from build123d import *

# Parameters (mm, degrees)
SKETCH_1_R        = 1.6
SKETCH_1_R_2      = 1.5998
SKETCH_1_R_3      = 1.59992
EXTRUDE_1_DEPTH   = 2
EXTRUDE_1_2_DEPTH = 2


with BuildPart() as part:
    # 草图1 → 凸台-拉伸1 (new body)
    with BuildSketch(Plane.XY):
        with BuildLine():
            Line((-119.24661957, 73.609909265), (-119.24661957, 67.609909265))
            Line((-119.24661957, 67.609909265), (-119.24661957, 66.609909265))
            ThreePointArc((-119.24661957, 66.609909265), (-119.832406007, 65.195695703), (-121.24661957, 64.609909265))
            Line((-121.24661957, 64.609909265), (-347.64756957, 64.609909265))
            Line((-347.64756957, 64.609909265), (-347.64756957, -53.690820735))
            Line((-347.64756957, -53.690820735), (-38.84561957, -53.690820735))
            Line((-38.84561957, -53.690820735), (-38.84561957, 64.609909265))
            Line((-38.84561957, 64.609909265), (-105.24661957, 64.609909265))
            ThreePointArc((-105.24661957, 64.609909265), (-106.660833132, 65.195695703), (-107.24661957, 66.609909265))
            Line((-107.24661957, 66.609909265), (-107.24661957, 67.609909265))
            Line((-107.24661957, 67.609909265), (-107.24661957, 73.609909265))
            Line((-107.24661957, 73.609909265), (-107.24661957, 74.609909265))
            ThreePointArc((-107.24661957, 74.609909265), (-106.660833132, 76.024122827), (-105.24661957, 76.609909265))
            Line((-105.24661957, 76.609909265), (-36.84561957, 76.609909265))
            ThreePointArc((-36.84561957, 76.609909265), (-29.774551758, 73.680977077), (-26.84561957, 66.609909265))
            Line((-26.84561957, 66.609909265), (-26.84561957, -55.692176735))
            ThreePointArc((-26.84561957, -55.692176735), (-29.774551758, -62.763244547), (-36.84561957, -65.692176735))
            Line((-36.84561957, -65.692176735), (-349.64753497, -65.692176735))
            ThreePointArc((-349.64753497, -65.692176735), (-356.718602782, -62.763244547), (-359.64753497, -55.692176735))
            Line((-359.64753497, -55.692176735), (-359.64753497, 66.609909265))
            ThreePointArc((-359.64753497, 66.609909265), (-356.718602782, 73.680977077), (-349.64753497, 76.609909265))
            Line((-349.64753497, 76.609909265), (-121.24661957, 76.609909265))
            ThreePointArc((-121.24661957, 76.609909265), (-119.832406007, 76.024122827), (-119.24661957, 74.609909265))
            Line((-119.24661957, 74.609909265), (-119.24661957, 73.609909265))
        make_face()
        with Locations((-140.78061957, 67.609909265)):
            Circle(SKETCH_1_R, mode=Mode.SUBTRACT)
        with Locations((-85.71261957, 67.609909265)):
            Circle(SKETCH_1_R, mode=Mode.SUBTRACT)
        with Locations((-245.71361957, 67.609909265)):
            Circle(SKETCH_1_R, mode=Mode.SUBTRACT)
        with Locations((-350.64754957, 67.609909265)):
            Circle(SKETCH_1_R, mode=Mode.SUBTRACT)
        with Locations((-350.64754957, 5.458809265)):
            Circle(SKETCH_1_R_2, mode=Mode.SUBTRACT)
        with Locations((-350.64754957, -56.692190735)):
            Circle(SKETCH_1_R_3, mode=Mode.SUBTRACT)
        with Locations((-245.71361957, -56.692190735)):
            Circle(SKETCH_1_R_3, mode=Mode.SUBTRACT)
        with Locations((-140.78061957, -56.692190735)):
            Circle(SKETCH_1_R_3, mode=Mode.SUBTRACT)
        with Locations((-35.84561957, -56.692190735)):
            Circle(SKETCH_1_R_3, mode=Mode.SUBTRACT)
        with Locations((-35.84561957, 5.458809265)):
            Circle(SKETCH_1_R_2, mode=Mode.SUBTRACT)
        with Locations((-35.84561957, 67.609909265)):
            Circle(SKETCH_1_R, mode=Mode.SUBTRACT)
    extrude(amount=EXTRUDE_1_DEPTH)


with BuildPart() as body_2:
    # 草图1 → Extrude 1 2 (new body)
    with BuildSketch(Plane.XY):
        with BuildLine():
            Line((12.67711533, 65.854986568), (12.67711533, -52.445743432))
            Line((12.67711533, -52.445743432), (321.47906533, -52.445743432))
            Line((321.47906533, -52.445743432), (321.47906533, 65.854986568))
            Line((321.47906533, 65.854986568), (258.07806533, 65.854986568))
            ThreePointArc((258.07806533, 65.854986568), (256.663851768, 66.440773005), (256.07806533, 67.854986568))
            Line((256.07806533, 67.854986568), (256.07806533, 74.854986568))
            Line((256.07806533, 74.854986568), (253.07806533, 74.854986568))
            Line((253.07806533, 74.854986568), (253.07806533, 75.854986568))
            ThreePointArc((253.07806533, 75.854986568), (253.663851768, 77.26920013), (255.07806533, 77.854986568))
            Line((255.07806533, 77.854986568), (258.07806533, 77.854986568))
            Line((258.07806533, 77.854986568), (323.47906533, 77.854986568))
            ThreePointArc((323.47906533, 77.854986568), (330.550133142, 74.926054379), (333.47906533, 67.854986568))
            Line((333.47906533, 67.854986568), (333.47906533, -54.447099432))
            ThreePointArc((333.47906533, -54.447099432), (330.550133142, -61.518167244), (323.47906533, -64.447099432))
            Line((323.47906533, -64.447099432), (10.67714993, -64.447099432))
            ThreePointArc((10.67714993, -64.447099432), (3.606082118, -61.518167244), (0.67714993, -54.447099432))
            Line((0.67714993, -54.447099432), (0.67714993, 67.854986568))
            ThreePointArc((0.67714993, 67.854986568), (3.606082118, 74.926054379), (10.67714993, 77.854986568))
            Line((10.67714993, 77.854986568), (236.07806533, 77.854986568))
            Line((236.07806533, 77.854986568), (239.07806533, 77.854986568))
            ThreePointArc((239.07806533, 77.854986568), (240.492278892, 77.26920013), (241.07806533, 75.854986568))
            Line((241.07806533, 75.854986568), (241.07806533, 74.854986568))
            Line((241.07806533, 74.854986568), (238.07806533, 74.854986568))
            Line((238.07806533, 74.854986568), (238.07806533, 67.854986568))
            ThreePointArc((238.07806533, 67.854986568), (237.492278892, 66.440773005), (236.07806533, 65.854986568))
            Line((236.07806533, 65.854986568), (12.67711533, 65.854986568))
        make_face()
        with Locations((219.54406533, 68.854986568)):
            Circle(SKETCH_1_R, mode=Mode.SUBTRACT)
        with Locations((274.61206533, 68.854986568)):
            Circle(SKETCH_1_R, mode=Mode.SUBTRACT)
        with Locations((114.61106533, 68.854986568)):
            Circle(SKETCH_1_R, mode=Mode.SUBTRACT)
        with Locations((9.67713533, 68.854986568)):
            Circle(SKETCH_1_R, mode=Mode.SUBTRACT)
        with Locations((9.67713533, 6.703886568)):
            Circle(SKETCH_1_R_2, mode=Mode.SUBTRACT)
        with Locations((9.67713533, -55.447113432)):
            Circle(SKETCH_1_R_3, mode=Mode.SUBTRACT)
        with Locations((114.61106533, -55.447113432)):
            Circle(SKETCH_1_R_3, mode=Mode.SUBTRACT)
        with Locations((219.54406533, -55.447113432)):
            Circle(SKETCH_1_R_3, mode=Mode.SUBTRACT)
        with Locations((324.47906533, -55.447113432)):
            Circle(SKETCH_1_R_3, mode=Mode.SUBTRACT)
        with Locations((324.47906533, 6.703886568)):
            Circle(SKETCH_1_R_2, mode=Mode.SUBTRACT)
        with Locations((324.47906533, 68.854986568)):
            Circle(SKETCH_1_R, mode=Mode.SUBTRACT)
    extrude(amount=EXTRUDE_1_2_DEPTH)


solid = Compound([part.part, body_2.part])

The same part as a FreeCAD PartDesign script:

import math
import FreeCAD as App
import Part
import Sketcher
from FreeCAD import Vector

doc = App.newDocument("Part")
body = doc.addObject("PartDesign::Body", "Body")

sketch1 = doc.addObject("Sketcher::SketchObject", "Sketch")
body.addObject(sketch1)
sketch1.AttachmentSupport = (doc.XY_Plane, [""])
sketch1.MapMode = "FlatFace"
sketch1.addGeometry([
    Part.ArcOfCircle(Part.Circle(Vector(-121.2, 66.6, 0), Vector(0, 0, 1), 2), math.radians(-90), math.radians(0)),
    Part.LineSegment(Vector(-119.2, 66.6, 0), Vector(-119.2, 74.6, 0)),
    Part.ArcOfCircle(Part.Circle(Vector(-121.2, 74.6, 0), Vector(0, 0, 1), 2), math.radians(0), math.radians(90)),
    Part.LineSegment(Vector(-121.2, 76.6, 0), Vector(-349.6, 76.6, 0)),
    Part.ArcOfCircle(Part.Circle(Vector(-349.6, 66.6, 0), Vector(0, 0, 1), 10), math.radians(90), math.radians(180)),
    Part.LineSegment(Vector(-359.6, 66.6, 0), Vector(-359.6, -55.7, 0)),
    Part.ArcOfCircle(Part.Circle(Vector(-349.6, -55.7, 0), Vector(0, 0, 1), 10), math.radians(180), math.radians(270)),
    Part.LineSegment(Vector(-349.6, -65.7, 0), Vector(-36.8, -65.7, 0)),
    Part.ArcOfCircle(Part.Circle(Vector(-36.8, -55.7, 0), Vector(0, 0, 1), 10), math.radians(-90), math.radians(0)),
    Part.LineSegment(Vector(-26.8, -55.7, 0), Vector(-26.8, 66.6, 0)),
    Part.ArcOfCircle(Part.Circle(Vector(-36.8, 66.6, 0), Vector(0, 0, 1), 10), math.radians(0), math.radians(90)),
    Part.LineSegment(Vector(-36.8, 76.6, 0), Vector(-105.2, 76.6, 0)),
    Part.ArcOfCircle(Part.Circle(Vector(-105.2, 74.6, 0), Vector(0, 0, 1), 2), math.radians(90), math.radians(180)),
    Part.LineSegment(Vector(-107.2, 74.6, 0), Vector(-107.2, 66.6, 0)),
    Part.ArcOfCircle(Part.Circle(Vector(-105.2, 66.6, 0), Vector(0, 0, 1), 2), math.radians(-180), math.radians(-90)),
    Part.LineSegment(Vector(-105.2, 64.6, 0), Vector(-38.8, 64.6, 0)),
    Part.LineSegment(Vector(-38.8, 64.6, 0), Vector(-38.8, -53.7, 0)),
    Part.LineSegment(Vector(-38.8, -53.7, 0), Vector(-347.6, -53.7, 0)),
    Part.LineSegment(Vector(-347.6, -53.7, 0), Vector(-347.6, 64.6, 0)),
    Part.LineSegment(Vector(-347.6, 64.6, 0), Vector(-121.2, 64.6, 0)),
    Part.Circle(Vector(-35.8, -56.7, 0), Vector(0, 0, 1), 1.6),
    Part.Circle(Vector(-140.8, -56.7, 0), Vector(0, 0, 1), 1.6),
    Part.Circle(Vector(-35.8, 5.5, 0), Vector(0, 0, 1), 1.6),
    Part.Circle(Vector(-245.7, -56.7, 0), Vector(0, 0, 1), 1.6),
    Part.Circle(Vector(-350.6, -56.7, 0), Vector(0, 0, 1), 1.6),
    Part.Circle(Vector(-350.6, 5.5, 0), Vector(0, 0, 1), 1.6),
    Part.Circle(Vector(-35.8, 67.6, 0), Vector(0, 0, 1), 1.6),
    Part.Circle(Vector(-85.7, 67.6, 0), Vector(0, 0, 1), 1.6),
    Part.Circle(Vector(-140.8, 67.6, 0), Vector(0, 0, 1), 1.6),
    Part.Circle(Vector(-245.7, 67.6, 0), Vector(0, 0, 1), 1.6),
    Part.Circle(Vector(-350.6, 67.6, 0), Vector(0, 0, 1), 1.6),
], False)
sketch1.addConstraint([
    Sketcher.Constraint("Tangent", 0, 2, 1, 1),
    Sketcher.Constraint("Tangent", 1, 2, 2, 1),
    Sketcher.Constraint("Tangent", 2, 2, 3, 1),
    Sketcher.Constraint("Tangent", 3, 2, 4, 1),
    Sketcher.Constraint("Tangent", 4, 2, 5, 1),
    Sketcher.Constraint("Tangent", 5, 2, 6, 1),
    Sketcher.Constraint("Tangent", 6, 2, 7, 1),
    Sketcher.Constraint("Tangent", 7, 2, 8, 1),
    Sketcher.Constraint("Tangent", 8, 2, 9, 1),
    Sketcher.Constraint("Tangent", 9, 2, 10, 1),
    Sketcher.Constraint("Tangent", 10, 2, 11, 1),
    Sketcher.Constraint("Tangent", 11, 2, 12, 1),
    Sketcher.Constraint("Tangent", 12, 2, 13, 1),
    Sketcher.Constraint("Tangent", 13, 2, 14, 1),
    Sketcher.Constraint("Tangent", 14, 2, 15, 1),
    Sketcher.Constraint("Coincident", 15, 2, 16, 1),
    Sketcher.Constraint("Coincident", 16, 2, 17, 1),
    Sketcher.Constraint("Coincident", 17, 2, 18, 1),
    Sketcher.Constraint("Coincident", 18, 2, 19, 1),
    Sketcher.Constraint("Tangent", 19, 2, 0, 1),
    Sketcher.Constraint("Vertical", 1),
    Sketcher.Constraint("Horizontal", 3),
    Sketcher.Constraint("Vertical", 5),
    Sketcher.Constraint("Horizontal", 7),
    Sketcher.Constraint("Vertical", 9),
    Sketcher.Constraint("Horizontal", 11),
    Sketcher.Constraint("Vertical", 13),
    Sketcher.Constraint("Horizontal", 15),
    Sketcher.Constraint("Vertical", 16),
    Sketcher.Constraint("Horizontal", 17),
    Sketcher.Constraint("Vertical", 18),
    Sketcher.Constraint("Horizontal", 19),
    Sketcher.Constraint("Equal", 0, 2),
    Sketcher.Constraint("Equal", 4, 6),
    Sketcher.Constraint("Equal", 6, 8),
    Sketcher.Constraint("Equal", 8, 10),
    Sketcher.Constraint("Equal", 2, 12),
    Sketcher.Constraint("Equal", 12, 14),
    Sketcher.Constraint("Equal", 20, 21),
    Sketcher.Constraint("Equal", 21, 23),
    Sketcher.Constraint("Equal", 23, 24),
    Sketcher.Constraint("Equal", 22, 25),
    Sketcher.Constraint("Equal", 26, 27),
    Sketcher.Constraint("Equal", 27, 28),
    Sketcher.Constraint("Equal", 28, 29),
    Sketcher.Constraint("Equal", 29, 30),
    Sketcher.Constraint("Horizontal", 0, 3, 4, 3),
    Sketcher.Constraint("Horizontal", 4, 3, 10, 3),
    Sketcher.Constraint("Horizontal", 10, 3, 14, 3),
    Sketcher.Constraint("Horizontal", 20, 3, 21, 3),
    Sketcher.Constraint("Horizontal", 21, 3, 23, 3),
    Sketcher.Constraint("Horizontal", 23, 3, 24, 3),
    Sketcher.Constraint("Horizontal", 22, 3, 25, 3),
    Sketcher.Constraint("Horizontal", 26, 3, 27, 3),
    Sketcher.Constraint("Horizontal", 27, 3, 28, 3),
    Sketcher.Constraint("Horizontal", 28, 3, 29, 3),
    Sketcher.Constraint("Horizontal", 29, 3, 30, 3),
    Sketcher.Constraint("Vertical", 20, 3, 22, 3),
    Sketcher.Constraint("Vertical", 24, 3, 25, 3),
    Sketcher.Constraint("Vertical", 22, 3, 26, 3),
    Sketcher.Constraint("Vertical", 21, 3, 28, 3),
    Sketcher.Constraint("Vertical", 23, 3, 29, 3),
    Sketcher.Constraint("Vertical", 25, 3, 30, 3),
    Sketcher.Constraint("Radius", 0, 2.0),
    Sketcher.Constraint("Radius", 4, 10.0),
    Sketcher.Constraint("Diameter", 26, 3.2),
    Sketcher.Constraint("DistanceX", 2, 3, 12, 3, 16.0),
    Sketcher.Constraint("DistanceX", 8, 3, 20, 3, 1.0),
    Sketcher.Constraint("DistanceY", 10, 3, 26, 3, 1.0),
    Sketcher.Constraint("DistanceX", 15, 2, 10, 3, 2.0),
    Sketcher.Constraint("Diameter", 22, 3.1996),
    Sketcher.Constraint("Diameter", 20, 3.19984),
    Sketcher.Constraint("DistanceX", 11, 2, 11, 1, 68.401),
    Sketcher.Constraint("DistanceX", 21, 3, 8, 3, 103.935),
    Sketcher.Constraint("DistanceY", 20, 3, 22, 3, 62.151),
    Sketcher.Constraint("DistanceX", 23, 3, 21, 3, 104.933),
    Sketcher.Constraint("DistanceX", 14, 3, 27, 3, 19.534),
    Sketcher.Constraint("DistanceX", 17, 2, 17, 1, 308.80195),
    Sketcher.Constraint("DistanceY", 16, 2, 16, 1, 118.30073),
    Sketcher.Constraint("DistanceY", 20, 3, 10, 3, 123.3021),
    Sketcher.Constraint("DistanceX", 3, 2, 3, 1, 228.400915),
    Sketcher.Constraint("DistanceY", 5, 2, 5, 1, 122.302086),
    Sketcher.Constraint("DistanceX", 0, 3, -1, 1, 121.24662),
    Sketcher.Constraint("DistanceY", -1, 1, 0, 3, 66.609909),
    Sketcher.Constraint("DistanceX", 24, 3, -1, 1, 350.64755),
])
pad1 = doc.addObject("PartDesign::Pad", "Pad")
body.addObject(pad1)
pad1.Profile = sketch1
pad1.Length = 2
body2 = doc.addObject("PartDesign::Body", "Body001")

sketch2 = doc.addObject("Sketcher::SketchObject", "Sketch001")
body2.addObject(sketch2)
sketch2.AttachmentSupport = (doc.getObject("XY_Plane001"), [""])
sketch2.MapMode = "FlatFace"
sketch2.addGeometry([
    Part.LineSegment(Vector(12.7, -52.4, 0), Vector(12.7, 65.9, 0)),
    Part.LineSegment(Vector(12.7, 65.9, 0), Vector(236.1, 65.9, 0)),
    Part.ArcOfCircle(Part.Circle(Vector(236.1, 67.9, 0), Vector(0, 0, 1), 2), math.radians(-90), math.radians(0)),
    Part.LineSegment(Vector(238.1, 67.9, 0), Vector(238.1, 74.9, 0)),
    Part.LineSegment(Vector(238.1, 74.9, 0), Vector(241.1, 74.9, 0)),
    Part.LineSegment(Vector(241.1, 74.9, 0), Vector(241.1, 75.9, 0)),
    Part.ArcOfCircle(Part.Circle(Vector(239.1, 75.9, 0), Vector(0, 0, 1), 2), math.radians(0), math.radians(90)),
    Part.LineSegment(Vector(239.1, 77.9, 0), Vector(10.7, 77.9, 0)),
    Part.ArcOfCircle(Part.Circle(Vector(10.7, 67.9, 0), Vector(0, 0, 1), 10), math.radians(90), math.radians(180)),
    Part.LineSegment(Vector(0.7, 67.9, 0), Vector(0.7, -54.4, 0)),
    Part.ArcOfCircle(Part.Circle(Vector(10.7, -54.4, 0), Vector(0, 0, 1), 10), math.radians(180), math.radians(270)),
    Part.LineSegment(Vector(10.7, -64.4, 0), Vector(323.5, -64.4, 0)),
    Part.ArcOfCircle(Part.Circle(Vector(323.5, -54.4, 0), Vector(0, 0, 1), 10), math.radians(-90), math.radians(0)),
    Part.LineSegment(Vector(333.5, -54.4, 0), Vector(333.5, 67.9, 0)),
    Part.ArcOfCircle(Part.Circle(Vector(323.5, 67.9, 0), Vector(0, 0, 1), 10), math.radians(0), math.radians(90)),
    Part.LineSegment(Vector(323.5, 77.9, 0), Vector(255.1, 77.9, 0)),
    Part.ArcOfCircle(Part.Circle(Vector(255.1, 75.9, 0), Vector(0, 0, 1), 2), math.radians(90), math.radians(180)),
    Part.LineSegment(Vector(253.1, 75.9, 0), Vector(253.1, 74.9, 0)),
    Part.LineSegment(Vector(253.1, 74.9, 0), Vector(256.1, 74.9, 0)),
    Part.LineSegment(Vector(256.1, 74.9, 0), Vector(256.1, 67.9, 0)),
    Part.ArcOfCircle(Part.Circle(Vector(258.1, 67.9, 0), Vector(0, 0, 1), 2), math.radians(180), math.radians(270)),
    Part.LineSegment(Vector(258.1, 65.9, 0), Vector(321.5, 65.9, 0)),
    Part.LineSegment(Vector(321.5, 65.9, 0), Vector(321.5, -52.4, 0)),
    Part.LineSegment(Vector(321.5, -52.4, 0), Vector(12.7, -52.4, 0)),
    Part.Circle(Vector(324.5, -55.4, 0), Vector(0, 0, 1), 1.6),
    Part.Circle(Vector(219.5, -55.4, 0), Vector(0, 0, 1), 1.6),
    Part.Circle(Vector(324.5, 6.7, 0), Vector(0, 0, 1), 1.6),
    Part.Circle(Vector(114.6, -55.4, 0), Vector(0, 0, 1), 1.6),
    Part.Circle(Vector(9.7, -55.4, 0), Vector(0, 0, 1), 1.6),
    Part.Circle(Vector(9.7, 6.7, 0), Vector(0, 0, 1), 1.6),
    Part.Circle(Vector(324.5, 68.9, 0), Vector(0, 0, 1), 1.6),
    Part.Circle(Vector(274.6, 68.9, 0), Vector(0, 0, 1), 1.6),
    Part.Circle(Vector(219.5, 68.9, 0), Vector(0, 0, 1), 1.6),
    Part.Circle(Vector(114.6, 68.9, 0), Vector(0, 0, 1), 1.6),
    Part.Circle(Vector(9.7, 68.9, 0), Vector(0, 0, 1), 1.6),
], False)
sketch2.addConstraint([
    Sketcher.Constraint("Coincident", 0, 2, 1, 1),
    Sketcher.Constraint("Tangent", 1, 2, 2, 1),
    Sketcher.Constraint("Tangent", 2, 2, 3, 1),
    Sketcher.Constraint("Coincident", 3, 2, 4, 1),
    Sketcher.Constraint("Coincident", 4, 2, 5, 1),
    Sketcher.Constraint("Tangent", 5, 2, 6, 1),
    Sketcher.Constraint("Tangent", 6, 2, 7, 1),
    Sketcher.Constraint("Tangent", 7, 2, 8, 1),
    Sketcher.Constraint("Tangent", 8, 2, 9, 1),
    Sketcher.Constraint("Tangent", 9, 2, 10, 1),
    Sketcher.Constraint("Tangent", 10, 2, 11, 1),
    Sketcher.Constraint("Tangent", 11, 2, 12, 1),
    Sketcher.Constraint("Tangent", 12, 2, 13, 1),
    Sketcher.Constraint("Tangent", 13, 2, 14, 1),
    Sketcher.Constraint("Tangent", 14, 2, 15, 1),
    Sketcher.Constraint("Tangent", 15, 2, 16, 1),
    Sketcher.Constraint("Tangent", 16, 2, 17, 1),
    Sketcher.Constraint("Coincident", 17, 2, 18, 1),
    Sketcher.Constraint("Coincident", 18, 2, 19, 1),
    Sketcher.Constraint("Tangent", 19, 2, 20, 1),
    Sketcher.Constraint("Tangent", 20, 2, 21, 1),
    Sketcher.Constraint("Coincident", 21, 2, 22, 1),
    Sketcher.Constraint("Coincident", 22, 2, 23, 1),
    Sketcher.Constraint("Coincident", 23, 2, 0, 1),
    Sketcher.Constraint("Vertical", 0),
    Sketcher.Constraint("Horizontal", 1),
    Sketcher.Constraint("Vertical", 3),
    Sketcher.Constraint("Horizontal", 4),
    Sketcher.Constraint("Vertical", 5),
    Sketcher.Constraint("Horizontal", 7),
    Sketcher.Constraint("Vertical", 9),
    Sketcher.Constraint("Horizontal", 11),
    Sketcher.Constraint("Vertical", 13),
    Sketcher.Constraint("Horizontal", 15),
    Sketcher.Constraint("Vertical", 17),
    Sketcher.Constraint("Horizontal", 18),
    Sketcher.Constraint("Vertical", 19),
    Sketcher.Constraint("Horizontal", 21),
    Sketcher.Constraint("Vertical", 22),
    Sketcher.Constraint("Horizontal", 23),
    Sketcher.Constraint("Equal", 2, 6),
    Sketcher.Constraint("Equal", 8, 10),
    Sketcher.Constraint("Equal", 10, 12),
    Sketcher.Constraint("Equal", 12, 14),
    Sketcher.Constraint("Equal", 6, 16),
    Sketcher.Constraint("Equal", 16, 20),
    Sketcher.Constraint("Equal", 24, 25),
    Sketcher.Constraint("Equal", 25, 27),
    Sketcher.Constraint("Equal", 27, 28),
    Sketcher.Constraint("Equal", 26, 29),
    Sketcher.Constraint("Equal", 30, 31),
    Sketcher.Constraint("Equal", 31, 32),
    Sketcher.Constraint("Equal", 32, 33),
    Sketcher.Constraint("Equal", 33, 34),
    Sketcher.Constraint("Horizontal", 2, 3, 8, 3),
    Sketcher.Constraint("Horizontal", 8, 3, 14, 3),
    Sketcher.Constraint("Horizontal", 14, 3, 20, 3),
    Sketcher.Constraint("Horizontal", 24, 3, 25, 3),
    Sketcher.Constraint("Horizontal", 25, 3, 27, 3),
    Sketcher.Constraint("Horizontal", 27, 3, 28, 3),
    Sketcher.Constraint("Horizontal", 26, 3, 29, 3),
    Sketcher.Constraint("Horizontal", 30, 3, 31, 3),
    Sketcher.Constraint("Horizontal", 31, 3, 32, 3),
    Sketcher.Constraint("Horizontal", 32, 3, 33, 3),
    Sketcher.Constraint("Horizontal", 33, 3, 34, 3),
    Sketcher.Constraint("Horizontal", 4, 2, 17, 2),
    Sketcher.Constraint("Vertical", 24, 3, 26, 3),
    Sketcher.Constraint("Vertical", 28, 3, 29, 3),
    Sketcher.Constraint("Vertical", 26, 3, 30, 3),
    Sketcher.Constraint("Vertical", 25, 3, 32, 3),
    Sketcher.Constraint("Vertical", 27, 3, 33, 3),
    Sketcher.Constraint("Vertical", 29, 3, 34, 3),
    Sketcher.Constraint("Equal", 4, 18),
    Sketcher.Constraint("Radius", 2, 2.0),
    Sketcher.Constraint("Radius", 8, 10.0),
    Sketcher.Constraint("Diameter", 30, 3.2),
    Sketcher.Constraint("DistanceX", 4, 1, 4, 2, 3.0),
    Sketcher.Constraint("DistanceY", 3, 1, 3, 2, 7.0),
    Sketcher.Constraint("DistanceX", 6, 3, 16, 3, 16.0),
    Sketcher.Constraint("DistanceX", 12, 3, 24, 3, 1.0),
    Sketcher.Constraint("DistanceY", 14, 3, 30, 3, 1.0),
    Sketcher.Constraint("DistanceX", 21, 2, 14, 3, 2.0),
    Sketcher.Constraint("Diameter", 26, 3.1996),
    Sketcher.Constraint("Diameter", 24, 3.19984),
    Sketcher.Constraint("DistanceX", 15, 2, 15, 1, 68.401),
    Sketcher.Constraint("DistanceX", 25, 3, 12, 3, 103.935),
    Sketcher.Constraint("DistanceY", 24, 3, 26, 3, 62.151),
    Sketcher.Constraint("DistanceX", 27, 3, 25, 3, 104.933),
    Sketcher.Constraint("DistanceX", 20, 3, 31, 3, 16.534),
    Sketcher.Constraint("DistanceX", 1, 1, 1, 2, 223.40095),
    Sketcher.Constraint("DistanceY", 0, 1, 0, 2, 118.30073),
    Sketcher.Constraint("DistanceY", 10, 3, -1, 1, 54.447099),
    Sketcher.Constraint("DistanceY", 24, 3, 14, 3, 123.3021),
    Sketcher.Constraint("DistanceX", 7, 2, 7, 1, 228.400915),
    Sketcher.Constraint("DistanceY", 9, 2, 9, 1, 122.302086),
    Sketcher.Constraint("DistanceX", -1, 1, 8, 3, 10.67715),
    Sketcher.Constraint("DistanceX", 28, 3, 27, 3, 104.93393),
])
pad2 = doc.addObject("PartDesign::Pad", "Pad001")
body2.addObject(pad2)
pad2.Profile = sketch2
pad2.Length = 2

doc.recompute()
